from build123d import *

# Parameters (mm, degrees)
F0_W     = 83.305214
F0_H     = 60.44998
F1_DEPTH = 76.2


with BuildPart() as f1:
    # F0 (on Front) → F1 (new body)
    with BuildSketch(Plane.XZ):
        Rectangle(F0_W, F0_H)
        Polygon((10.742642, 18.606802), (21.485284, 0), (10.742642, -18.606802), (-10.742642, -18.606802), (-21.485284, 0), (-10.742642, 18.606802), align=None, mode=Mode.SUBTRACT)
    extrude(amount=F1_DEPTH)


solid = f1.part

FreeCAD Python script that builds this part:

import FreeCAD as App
import Part
import Sketcher
Q = App.Units.Quantity


def add_polygon(sketch, points):
    """Adds a closed chain of lines whose ends are joined by coincident constraints."""
    first, n = sketch.GeometryCount, len(points)
    for a, b in zip(points, points[1:] + points[:1]):
        sketch.addGeometry(Part.LineSegment(App.Vector(*a, 0), App.Vector(*b, 0)), False)
    for i in range(n):
        sketch.addConstraint(Sketcher.Constraint("Coincident", first + i, 2, first + (i + 1) % n, 1))

doc = App.newDocument("Part")
params = doc.addObject("Spreadsheet::Sheet", "Params")
for row, (alias, value) in enumerate([
    ("pad1_length", "3 in"),
], start=1):
    params.set(f"A{row}", alias)
    params.set(f"B{row}", "=" + value)
    params.setAlias(f"B{row}", alias)

body = doc.addObject("PartDesign::Body", "Body")

# Sketch on XZ plane
sketch1 = doc.addObject("Sketcher::SketchObject", "Sketch")
body.addObject(sketch1)
sketch1.AttachmentSupport = (doc.XZ_Plane, [""])
sketch1.MapMode = "FlatFace"
add_polygon(sketch1, [(-42, 30), (-42, -30), (42, -30), (42, 30)])  # lines 0-3
add_polygon(sketch1, [(-11, 19), (11, 19), (21, 0), (11, -19), (-11, -19), (-21, 0)])  # lines 4-9
sketch1.addConstraint(Sketcher.Constraint("Vertical", 0))
sketch1.addConstraint(Sketcher.Constraint("Horizontal", 1))
sketch1.addConstraint(Sketcher.Constraint("Vertical", 2))
sketch1.addConstraint(Sketcher.Constraint("Horizontal", 3))
sketch1.addConstraint(Sketcher.Constraint("Horizontal", 4))
sketch1.addConstraint(Sketcher.Constraint("Horizontal", 7))
sketch1.addConstraint(Sketcher.Constraint("Symmetric", 0, 2, 2, 2, -1, 1))
sketch1.addConstraint(Sketcher.Constraint("Symmetric", 4, 2, 7, 2, -1, 1))
sketch1.addConstraint(Sketcher.Constraint("Symmetric", 5, 2, 8, 2, -1, 1))
sketch1.addConstraint(Sketcher.Constraint("PointOnObject", 5, 2, -1))
sketch1.addConstraint(Sketcher.Constraint("Parallel", 6, 9))
sketch1.addConstraint(Sketcher.Constraint("Vertical", 4, 2, 6, 2))
sketch1.addConstraint(Sketcher.Constraint("Angle", 5, Q("-60 deg")))
sketch1.addConstraint(Sketcher.Constraint("DistanceY", 0, 2, 0, 1, Q("60.44998 mm")))
sketch1.addConstraint(Sketcher.Constraint("DistanceY", -1, 1, 4, 2, Q("18.606802 mm")))
sketch1.addConstraint(Sketcher.Constraint("DistanceX", 1, 1, 1, 2, Q("83.305214 mm")))
sketch1.addConstraint(Sketcher.Constraint("DistanceX", 4, 1, 4, 2, Q("21.485284 mm")))
pad1 = doc.addObject("PartDesign::Pad", "Pad")
body.addObject(pad1)
pad1.Profile = sketch1
pad1.setExpression("Length", "Params.pad1_length")

doc.recompute()
